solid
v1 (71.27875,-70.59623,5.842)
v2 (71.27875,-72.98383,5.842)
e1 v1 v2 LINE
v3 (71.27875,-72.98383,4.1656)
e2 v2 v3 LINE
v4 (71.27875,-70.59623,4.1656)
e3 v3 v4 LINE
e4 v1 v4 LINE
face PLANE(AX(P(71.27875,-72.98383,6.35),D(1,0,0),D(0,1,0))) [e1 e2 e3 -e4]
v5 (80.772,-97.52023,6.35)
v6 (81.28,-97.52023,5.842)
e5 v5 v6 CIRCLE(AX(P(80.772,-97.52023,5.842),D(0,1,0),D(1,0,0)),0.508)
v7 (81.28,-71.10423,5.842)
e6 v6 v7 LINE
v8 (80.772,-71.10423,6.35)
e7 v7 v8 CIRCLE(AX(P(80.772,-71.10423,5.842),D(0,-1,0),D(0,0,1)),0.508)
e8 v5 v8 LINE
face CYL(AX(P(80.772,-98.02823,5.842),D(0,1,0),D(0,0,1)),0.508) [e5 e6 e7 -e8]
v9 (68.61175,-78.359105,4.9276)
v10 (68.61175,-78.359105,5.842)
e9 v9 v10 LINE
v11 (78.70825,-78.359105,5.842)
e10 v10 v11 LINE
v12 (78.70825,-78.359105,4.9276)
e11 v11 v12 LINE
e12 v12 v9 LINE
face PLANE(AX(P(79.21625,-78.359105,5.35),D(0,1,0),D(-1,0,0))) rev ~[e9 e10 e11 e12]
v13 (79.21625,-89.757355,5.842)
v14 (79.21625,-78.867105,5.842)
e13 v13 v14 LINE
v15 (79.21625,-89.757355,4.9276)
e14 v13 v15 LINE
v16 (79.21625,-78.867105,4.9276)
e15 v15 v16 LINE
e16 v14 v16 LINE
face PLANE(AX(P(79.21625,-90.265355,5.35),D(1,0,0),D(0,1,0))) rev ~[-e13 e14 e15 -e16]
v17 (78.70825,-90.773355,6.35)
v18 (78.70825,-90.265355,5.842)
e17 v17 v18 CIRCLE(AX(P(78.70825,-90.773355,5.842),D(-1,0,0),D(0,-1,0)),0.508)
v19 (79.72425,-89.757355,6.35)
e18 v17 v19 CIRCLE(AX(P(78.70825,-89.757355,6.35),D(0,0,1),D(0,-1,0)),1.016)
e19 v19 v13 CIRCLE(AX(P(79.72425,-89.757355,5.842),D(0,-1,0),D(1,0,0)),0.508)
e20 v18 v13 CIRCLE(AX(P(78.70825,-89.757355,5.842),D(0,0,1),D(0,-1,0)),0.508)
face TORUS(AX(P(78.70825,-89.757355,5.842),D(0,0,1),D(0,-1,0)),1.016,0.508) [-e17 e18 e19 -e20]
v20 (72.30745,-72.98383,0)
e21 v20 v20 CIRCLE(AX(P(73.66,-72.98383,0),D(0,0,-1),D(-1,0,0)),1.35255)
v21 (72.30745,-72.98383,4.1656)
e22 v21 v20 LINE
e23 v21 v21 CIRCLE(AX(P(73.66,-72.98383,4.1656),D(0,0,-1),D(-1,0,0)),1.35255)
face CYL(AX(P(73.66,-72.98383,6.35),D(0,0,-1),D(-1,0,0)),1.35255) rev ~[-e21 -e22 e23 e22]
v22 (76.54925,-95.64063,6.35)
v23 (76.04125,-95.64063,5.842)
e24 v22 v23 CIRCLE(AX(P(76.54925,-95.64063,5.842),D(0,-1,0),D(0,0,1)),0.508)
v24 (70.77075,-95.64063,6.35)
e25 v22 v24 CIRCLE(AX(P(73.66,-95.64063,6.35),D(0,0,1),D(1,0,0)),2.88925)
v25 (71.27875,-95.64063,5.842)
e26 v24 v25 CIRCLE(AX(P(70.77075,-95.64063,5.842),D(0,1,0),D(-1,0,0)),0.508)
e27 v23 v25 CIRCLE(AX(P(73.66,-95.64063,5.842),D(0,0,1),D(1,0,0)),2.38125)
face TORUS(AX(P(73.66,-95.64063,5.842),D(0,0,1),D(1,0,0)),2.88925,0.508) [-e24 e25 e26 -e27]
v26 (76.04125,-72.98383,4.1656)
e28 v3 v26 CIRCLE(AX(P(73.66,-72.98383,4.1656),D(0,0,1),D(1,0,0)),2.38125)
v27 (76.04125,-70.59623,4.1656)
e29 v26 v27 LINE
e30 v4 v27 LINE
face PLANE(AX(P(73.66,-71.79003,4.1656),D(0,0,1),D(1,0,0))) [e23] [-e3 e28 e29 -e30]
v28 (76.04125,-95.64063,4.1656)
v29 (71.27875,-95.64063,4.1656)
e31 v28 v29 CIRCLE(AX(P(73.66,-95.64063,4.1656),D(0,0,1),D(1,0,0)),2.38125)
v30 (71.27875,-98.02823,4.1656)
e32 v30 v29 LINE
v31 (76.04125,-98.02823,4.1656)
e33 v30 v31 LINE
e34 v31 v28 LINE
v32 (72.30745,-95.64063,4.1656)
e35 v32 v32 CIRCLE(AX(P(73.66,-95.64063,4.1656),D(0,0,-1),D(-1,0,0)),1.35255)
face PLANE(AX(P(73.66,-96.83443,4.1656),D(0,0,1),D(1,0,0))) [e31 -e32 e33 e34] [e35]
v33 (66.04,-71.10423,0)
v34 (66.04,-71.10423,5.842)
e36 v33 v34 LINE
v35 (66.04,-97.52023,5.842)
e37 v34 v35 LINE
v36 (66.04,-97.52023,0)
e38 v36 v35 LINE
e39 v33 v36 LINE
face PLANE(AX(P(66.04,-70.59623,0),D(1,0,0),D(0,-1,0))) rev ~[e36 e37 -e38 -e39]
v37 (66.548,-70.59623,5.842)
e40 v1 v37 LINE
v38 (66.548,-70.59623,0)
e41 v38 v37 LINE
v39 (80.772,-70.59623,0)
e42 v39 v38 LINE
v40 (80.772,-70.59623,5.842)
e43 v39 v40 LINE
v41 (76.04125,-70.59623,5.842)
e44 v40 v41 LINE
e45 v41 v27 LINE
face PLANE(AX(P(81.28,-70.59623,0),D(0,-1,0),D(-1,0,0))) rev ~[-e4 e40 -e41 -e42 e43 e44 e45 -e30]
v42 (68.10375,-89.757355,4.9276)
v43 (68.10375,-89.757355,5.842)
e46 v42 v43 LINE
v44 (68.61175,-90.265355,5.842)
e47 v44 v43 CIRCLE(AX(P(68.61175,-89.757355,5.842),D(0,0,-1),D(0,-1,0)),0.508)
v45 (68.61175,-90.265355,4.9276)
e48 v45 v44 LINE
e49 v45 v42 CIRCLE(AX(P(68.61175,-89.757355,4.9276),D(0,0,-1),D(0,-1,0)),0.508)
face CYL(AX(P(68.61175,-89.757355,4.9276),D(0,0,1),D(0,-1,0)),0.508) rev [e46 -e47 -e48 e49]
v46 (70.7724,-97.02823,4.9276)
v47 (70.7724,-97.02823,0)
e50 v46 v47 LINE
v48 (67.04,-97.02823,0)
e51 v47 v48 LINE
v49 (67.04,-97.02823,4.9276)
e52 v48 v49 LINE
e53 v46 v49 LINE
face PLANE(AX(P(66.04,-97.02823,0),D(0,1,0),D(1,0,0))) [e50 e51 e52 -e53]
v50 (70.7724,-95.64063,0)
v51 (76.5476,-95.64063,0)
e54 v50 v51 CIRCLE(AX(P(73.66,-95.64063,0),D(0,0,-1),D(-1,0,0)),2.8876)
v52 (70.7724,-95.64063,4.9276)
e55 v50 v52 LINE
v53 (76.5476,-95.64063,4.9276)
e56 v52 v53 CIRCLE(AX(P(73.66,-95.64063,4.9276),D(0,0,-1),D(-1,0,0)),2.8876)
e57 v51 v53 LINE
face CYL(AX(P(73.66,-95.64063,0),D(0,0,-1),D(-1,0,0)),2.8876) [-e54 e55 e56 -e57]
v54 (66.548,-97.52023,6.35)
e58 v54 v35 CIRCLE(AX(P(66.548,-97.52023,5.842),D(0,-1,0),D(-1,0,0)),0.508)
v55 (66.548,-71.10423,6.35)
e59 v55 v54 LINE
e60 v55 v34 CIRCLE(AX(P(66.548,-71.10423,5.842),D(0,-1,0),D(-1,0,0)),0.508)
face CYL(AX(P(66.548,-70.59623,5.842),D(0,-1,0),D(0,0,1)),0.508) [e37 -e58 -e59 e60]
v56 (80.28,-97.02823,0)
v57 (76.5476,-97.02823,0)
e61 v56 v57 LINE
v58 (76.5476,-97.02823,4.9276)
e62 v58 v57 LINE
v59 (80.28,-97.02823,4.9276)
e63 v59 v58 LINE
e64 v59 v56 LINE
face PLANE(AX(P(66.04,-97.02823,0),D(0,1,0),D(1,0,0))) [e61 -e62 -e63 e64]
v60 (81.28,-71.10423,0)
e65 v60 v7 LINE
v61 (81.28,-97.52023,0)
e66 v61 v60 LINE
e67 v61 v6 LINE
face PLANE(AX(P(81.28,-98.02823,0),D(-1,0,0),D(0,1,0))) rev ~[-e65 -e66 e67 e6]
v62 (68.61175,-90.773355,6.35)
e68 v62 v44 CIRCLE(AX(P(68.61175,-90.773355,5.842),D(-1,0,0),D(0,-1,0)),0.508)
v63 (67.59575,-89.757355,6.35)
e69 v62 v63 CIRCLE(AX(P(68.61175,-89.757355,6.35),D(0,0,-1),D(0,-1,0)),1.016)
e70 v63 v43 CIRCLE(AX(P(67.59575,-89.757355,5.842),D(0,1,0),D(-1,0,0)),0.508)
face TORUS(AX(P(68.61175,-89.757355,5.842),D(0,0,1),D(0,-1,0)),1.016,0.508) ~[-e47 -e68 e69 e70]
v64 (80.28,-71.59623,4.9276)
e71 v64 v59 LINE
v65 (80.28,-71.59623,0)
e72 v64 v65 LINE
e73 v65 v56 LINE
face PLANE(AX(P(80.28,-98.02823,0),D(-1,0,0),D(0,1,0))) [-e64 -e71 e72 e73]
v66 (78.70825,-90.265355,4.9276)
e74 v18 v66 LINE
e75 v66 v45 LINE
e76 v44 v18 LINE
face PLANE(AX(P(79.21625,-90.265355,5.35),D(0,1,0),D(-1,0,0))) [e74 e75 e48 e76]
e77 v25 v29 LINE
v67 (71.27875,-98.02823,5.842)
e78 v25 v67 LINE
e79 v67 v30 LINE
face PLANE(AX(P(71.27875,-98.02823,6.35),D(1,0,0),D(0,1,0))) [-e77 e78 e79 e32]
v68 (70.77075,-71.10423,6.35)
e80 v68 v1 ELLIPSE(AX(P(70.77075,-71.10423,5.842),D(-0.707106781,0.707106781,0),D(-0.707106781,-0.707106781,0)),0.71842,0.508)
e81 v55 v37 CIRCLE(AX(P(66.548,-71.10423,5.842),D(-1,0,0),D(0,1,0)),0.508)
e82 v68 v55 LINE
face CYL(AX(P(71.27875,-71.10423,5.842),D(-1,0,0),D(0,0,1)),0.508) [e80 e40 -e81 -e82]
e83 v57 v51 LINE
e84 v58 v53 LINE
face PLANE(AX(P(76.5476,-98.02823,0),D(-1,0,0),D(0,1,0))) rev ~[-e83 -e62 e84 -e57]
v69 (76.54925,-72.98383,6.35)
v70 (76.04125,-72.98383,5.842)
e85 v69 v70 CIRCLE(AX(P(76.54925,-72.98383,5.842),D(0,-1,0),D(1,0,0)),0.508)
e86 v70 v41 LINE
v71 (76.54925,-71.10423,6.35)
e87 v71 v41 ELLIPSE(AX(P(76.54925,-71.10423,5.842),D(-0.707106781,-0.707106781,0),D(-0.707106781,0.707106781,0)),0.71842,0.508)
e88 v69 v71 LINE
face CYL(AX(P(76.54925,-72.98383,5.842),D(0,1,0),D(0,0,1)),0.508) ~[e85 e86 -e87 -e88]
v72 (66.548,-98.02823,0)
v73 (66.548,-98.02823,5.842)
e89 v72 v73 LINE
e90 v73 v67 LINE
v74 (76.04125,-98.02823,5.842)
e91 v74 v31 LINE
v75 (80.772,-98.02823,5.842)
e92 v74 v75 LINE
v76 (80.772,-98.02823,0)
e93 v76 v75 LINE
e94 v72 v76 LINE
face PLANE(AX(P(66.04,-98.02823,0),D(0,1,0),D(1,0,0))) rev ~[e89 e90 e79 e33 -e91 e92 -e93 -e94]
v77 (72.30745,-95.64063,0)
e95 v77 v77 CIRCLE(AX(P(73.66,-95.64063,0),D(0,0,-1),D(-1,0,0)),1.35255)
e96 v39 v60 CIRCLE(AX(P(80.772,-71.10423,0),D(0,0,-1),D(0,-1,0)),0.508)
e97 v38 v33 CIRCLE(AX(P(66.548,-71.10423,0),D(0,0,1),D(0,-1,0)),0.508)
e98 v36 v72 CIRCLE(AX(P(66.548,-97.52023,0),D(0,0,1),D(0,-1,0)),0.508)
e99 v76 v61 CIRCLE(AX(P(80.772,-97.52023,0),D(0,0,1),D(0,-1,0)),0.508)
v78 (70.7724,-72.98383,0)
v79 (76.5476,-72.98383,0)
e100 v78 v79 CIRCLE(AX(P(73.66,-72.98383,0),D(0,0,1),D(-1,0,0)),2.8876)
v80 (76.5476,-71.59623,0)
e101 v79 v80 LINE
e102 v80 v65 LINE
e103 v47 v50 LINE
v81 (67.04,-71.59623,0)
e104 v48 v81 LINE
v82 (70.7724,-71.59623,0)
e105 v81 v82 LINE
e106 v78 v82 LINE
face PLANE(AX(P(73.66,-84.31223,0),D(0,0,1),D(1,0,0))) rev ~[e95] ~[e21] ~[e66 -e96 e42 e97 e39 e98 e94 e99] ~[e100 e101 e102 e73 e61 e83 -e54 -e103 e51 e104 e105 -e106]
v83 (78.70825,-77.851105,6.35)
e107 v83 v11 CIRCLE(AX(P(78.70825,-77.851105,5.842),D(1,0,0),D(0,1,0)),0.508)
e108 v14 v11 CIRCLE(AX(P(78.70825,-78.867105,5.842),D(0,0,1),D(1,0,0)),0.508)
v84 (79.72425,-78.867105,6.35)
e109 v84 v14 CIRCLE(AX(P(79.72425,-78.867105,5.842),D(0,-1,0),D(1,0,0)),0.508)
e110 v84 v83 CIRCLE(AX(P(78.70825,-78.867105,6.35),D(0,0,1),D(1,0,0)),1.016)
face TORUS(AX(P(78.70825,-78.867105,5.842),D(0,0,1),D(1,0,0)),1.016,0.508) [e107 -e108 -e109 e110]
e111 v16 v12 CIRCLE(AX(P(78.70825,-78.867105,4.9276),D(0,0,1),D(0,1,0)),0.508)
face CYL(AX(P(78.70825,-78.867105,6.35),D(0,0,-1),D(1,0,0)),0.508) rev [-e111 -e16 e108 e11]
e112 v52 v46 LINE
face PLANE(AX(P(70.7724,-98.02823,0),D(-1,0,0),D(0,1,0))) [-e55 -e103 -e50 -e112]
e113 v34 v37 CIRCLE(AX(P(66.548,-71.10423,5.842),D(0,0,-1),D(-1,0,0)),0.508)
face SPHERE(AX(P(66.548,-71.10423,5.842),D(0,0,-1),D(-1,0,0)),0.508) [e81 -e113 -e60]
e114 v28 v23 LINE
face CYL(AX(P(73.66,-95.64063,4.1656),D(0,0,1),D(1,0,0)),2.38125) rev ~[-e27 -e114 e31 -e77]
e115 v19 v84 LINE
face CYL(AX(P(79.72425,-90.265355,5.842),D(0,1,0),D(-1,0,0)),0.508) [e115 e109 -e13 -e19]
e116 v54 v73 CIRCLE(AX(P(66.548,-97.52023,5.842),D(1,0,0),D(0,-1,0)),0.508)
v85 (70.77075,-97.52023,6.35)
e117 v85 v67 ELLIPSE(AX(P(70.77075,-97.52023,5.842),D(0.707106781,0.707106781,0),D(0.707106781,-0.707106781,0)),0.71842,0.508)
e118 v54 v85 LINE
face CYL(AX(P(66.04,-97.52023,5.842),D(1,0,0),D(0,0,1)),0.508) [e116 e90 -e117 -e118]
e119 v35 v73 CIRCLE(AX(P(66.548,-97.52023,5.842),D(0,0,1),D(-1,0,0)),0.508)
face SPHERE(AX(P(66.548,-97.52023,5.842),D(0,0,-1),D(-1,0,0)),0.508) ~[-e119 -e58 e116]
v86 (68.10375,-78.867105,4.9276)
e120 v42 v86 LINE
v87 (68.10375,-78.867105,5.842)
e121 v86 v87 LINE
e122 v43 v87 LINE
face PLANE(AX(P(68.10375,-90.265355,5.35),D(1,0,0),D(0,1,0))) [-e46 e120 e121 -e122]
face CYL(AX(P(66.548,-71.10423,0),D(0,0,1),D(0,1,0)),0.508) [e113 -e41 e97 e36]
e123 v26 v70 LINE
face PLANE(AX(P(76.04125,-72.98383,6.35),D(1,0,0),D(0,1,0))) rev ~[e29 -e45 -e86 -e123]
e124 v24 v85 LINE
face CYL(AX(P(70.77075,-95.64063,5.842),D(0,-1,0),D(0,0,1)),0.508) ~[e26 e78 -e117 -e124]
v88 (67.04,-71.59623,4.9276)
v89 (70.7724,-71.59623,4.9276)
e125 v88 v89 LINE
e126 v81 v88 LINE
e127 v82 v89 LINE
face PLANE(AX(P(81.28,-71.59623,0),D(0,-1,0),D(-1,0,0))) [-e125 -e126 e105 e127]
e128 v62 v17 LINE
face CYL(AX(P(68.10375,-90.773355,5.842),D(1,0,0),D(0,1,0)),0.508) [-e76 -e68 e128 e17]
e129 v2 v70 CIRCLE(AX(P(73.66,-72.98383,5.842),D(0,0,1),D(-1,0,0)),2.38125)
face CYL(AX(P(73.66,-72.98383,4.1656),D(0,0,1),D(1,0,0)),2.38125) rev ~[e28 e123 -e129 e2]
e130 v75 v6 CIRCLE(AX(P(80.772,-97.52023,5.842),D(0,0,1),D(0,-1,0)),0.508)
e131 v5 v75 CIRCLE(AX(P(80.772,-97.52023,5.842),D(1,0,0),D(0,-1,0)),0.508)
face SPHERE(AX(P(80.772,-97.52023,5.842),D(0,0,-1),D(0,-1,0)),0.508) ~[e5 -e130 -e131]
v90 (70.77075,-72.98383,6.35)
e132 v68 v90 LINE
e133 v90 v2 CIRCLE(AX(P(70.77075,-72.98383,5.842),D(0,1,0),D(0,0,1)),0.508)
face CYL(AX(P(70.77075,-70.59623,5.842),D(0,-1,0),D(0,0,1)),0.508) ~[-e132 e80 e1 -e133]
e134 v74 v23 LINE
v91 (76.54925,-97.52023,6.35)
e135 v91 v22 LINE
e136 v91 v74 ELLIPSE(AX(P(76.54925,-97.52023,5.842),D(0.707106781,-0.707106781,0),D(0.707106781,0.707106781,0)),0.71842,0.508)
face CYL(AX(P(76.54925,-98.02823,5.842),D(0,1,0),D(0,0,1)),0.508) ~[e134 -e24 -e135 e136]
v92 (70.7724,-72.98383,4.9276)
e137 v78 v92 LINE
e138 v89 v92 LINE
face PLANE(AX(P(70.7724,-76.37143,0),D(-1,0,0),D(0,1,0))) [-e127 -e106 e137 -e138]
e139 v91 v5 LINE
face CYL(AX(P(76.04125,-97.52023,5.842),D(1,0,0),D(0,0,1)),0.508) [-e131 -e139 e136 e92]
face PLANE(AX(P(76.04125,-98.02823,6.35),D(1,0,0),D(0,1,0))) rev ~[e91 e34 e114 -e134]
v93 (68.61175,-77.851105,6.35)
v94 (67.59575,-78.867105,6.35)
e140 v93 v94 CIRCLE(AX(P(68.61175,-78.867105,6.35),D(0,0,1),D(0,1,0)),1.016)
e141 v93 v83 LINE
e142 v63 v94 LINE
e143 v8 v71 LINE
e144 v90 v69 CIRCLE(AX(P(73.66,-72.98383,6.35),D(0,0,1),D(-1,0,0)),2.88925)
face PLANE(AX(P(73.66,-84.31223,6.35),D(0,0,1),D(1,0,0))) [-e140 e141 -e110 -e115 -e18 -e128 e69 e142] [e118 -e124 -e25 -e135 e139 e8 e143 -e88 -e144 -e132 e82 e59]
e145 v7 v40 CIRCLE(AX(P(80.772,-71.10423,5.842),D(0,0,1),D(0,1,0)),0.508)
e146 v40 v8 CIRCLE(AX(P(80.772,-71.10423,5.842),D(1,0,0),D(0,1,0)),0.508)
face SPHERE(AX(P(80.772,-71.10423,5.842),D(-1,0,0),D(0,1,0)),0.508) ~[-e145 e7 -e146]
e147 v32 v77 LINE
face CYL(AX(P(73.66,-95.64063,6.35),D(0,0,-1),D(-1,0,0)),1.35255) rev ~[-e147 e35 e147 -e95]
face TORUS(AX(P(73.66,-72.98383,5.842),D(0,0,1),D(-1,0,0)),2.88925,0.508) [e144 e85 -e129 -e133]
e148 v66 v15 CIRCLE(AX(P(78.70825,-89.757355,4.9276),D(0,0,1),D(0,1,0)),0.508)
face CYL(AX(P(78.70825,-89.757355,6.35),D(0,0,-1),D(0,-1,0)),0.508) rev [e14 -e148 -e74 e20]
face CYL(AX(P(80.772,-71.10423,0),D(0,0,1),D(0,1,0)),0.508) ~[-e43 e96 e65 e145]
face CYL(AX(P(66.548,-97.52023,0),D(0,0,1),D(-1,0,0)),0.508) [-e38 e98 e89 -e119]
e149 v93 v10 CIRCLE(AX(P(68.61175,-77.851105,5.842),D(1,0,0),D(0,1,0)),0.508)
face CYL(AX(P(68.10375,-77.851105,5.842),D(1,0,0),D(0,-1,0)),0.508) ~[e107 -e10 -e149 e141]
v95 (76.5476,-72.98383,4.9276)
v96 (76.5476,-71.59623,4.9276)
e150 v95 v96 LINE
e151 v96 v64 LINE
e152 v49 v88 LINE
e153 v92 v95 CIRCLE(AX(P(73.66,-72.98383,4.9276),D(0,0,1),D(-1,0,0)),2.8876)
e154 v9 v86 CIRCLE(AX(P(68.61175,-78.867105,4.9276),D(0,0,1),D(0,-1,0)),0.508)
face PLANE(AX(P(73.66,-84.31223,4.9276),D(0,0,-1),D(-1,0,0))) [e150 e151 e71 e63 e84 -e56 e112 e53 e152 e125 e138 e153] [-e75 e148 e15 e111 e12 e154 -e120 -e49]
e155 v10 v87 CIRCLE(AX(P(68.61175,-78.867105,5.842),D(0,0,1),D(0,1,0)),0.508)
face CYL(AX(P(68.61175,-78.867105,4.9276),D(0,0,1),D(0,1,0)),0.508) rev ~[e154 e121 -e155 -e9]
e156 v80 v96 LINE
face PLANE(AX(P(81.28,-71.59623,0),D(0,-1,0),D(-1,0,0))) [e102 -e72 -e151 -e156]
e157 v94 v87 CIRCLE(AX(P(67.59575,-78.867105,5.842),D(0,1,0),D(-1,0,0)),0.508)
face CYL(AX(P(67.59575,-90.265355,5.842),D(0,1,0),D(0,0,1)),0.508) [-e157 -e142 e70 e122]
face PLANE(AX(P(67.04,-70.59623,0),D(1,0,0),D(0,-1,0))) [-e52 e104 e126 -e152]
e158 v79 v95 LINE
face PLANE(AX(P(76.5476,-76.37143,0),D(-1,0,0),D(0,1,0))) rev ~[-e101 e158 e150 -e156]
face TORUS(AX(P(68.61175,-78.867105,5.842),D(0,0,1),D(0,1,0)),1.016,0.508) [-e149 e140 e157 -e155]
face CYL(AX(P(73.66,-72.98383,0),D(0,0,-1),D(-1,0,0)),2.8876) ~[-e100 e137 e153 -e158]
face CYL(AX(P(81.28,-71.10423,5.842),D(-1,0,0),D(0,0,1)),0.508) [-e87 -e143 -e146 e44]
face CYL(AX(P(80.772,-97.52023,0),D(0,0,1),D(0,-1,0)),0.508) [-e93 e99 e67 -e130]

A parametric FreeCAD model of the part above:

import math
import FreeCAD as App
import Part
import Sketcher
Q = App.Units.Quantity


def edges_at(feature, points):
    """Names of the edges that pass closest to the given points."""
    edges = feature.Shape.Edges
    near = lambda p: min(range(len(edges)), key=lambda i: edges[i].distToShape(Part.Vertex(*p))[0])
    return sorted({f"Edge{near(p) + 1}" for p in points})


def faces_at(feature, points):
    """Names of the faces that lie closest to the given points."""
    faces = feature.Shape.Faces
    near = lambda p: min(range(len(faces)), key=lambda i: faces[i].distToShape(Part.Vertex(*p))[0])
    return sorted({f"Face{near(p) + 1}" for p in points})

doc = App.newDocument("Part")
body = doc.addObject("PartDesign::Body", "Body")

# Sketch on XY plane
sketch1 = body.newObject("Sketcher::SketchObject", "Sketch")
sketch1.AttachmentSupport = (doc.getObject("XY_Plane"), [""])
sketch1.MapMode = "FlatFace"
sketch1.addGeometry(Part.LineSegment(App.Vector(81.28, -70.59623, 0), App.Vector(66.04, -70.59623, 0)), False)
sketch1.addGeometry(Part.LineSegment(App.Vector(66.04, -70.59623, 0), App.Vector(66.04, -98.02823, 0)), False)
sketch1.addGeometry(Part.LineSegment(App.Vector(66.04, -98.02823, 0), App.Vector(81.28, -98.02823, 0)), False)
sketch1.addGeometry(Part.LineSegment(App.Vector(81.28, -98.02823, 0), App.Vector(81.28, -70.59623, 0)), False)
sketch1.addConstraint(Sketcher.Constraint("Coincident", 0, 2, 1, 1))
sketch1.addConstraint(Sketcher.Constraint("Coincident", 1, 2, 2, 1))
sketch1.addConstraint(Sketcher.Constraint("Coincident", 2, 2, 3, 1))
sketch1.addConstraint(Sketcher.Constraint("Coincident", 3, 2, 0, 1))
sketch1.addConstraint(Sketcher.Constraint("Horizontal", 0))
sketch1.addConstraint(Sketcher.Constraint("Vertical", 1))
sketch1.addConstraint(Sketcher.Constraint("Horizontal", 2))
sketch1.addConstraint(Sketcher.Constraint("Vertical", 3))
sketch1.addConstraint(Sketcher.Constraint("DistanceX", 0, 2, 0, 1, Q("0.6 in")))
sketch1.addConstraint(Sketcher.Constraint("DistanceY", 1, 2, 1, 1, Q("1.08 in")))
sketch1.addConstraint(Sketcher.Constraint("DistanceX", -1, 1, 0, 2, Q("2.6 in")))
sketch1.addConstraint(Sketcher.Constraint("DistanceY", 0, 2, -1, 1, Q("70.59623 mm")))
pad1 = body.newObject("PartDesign::Pad", "Pad")
pad1.Profile = sketch1
pad1.Length = Q("0.25 in")

# Sketch on XY plane
sketch2 = body.newObject("Sketcher::SketchObject", "Sketch001")
sketch2.AttachmentSupport = (doc.getObject("XY_Plane"), [""])
sketch2.MapMode = "FlatFace"
sketch2.AttachmentOffset = App.Placement(App.Vector(0, 0, 0.25 * 25.4), App.Rotation())
sketch2.addGeometry(Part.LineSegment(App.Vector(68.10375, -78.359105, 0), App.Vector(68.10375, -90.265355, 0)), False)
sketch2.addGeometry(Part.LineSegment(App.Vector(68.10375, -90.265355, 0), App.Vector(79.21625, -90.265355, 0)), False)
sketch2.addGeometry(Part.LineSegment(App.Vector(79.21625, -90.265355, 0), App.Vector(79.21625, -78.359105, 0)), False)
sketch2.addGeometry(Part.LineSegment(App.Vector(79.21625, -78.359105, 0), App.Vector(68.10375, -78.359105, 0)), False)
sketch2.addConstraint(Sketcher.Constraint("Coincident", 0, 2, 1, 1))
sketch2.addConstraint(Sketcher.Constraint("Coincident", 1, 2, 2, 1))
sketch2.addConstraint(Sketcher.Constraint("Coincident", 2, 2, 3, 1))
sketch2.addConstraint(Sketcher.Constraint("Coincident", 3, 2, 0, 1))
sketch2.addConstraint(Sketcher.Constraint("Vertical", 0))
sketch2.addConstraint(Sketcher.Constraint("Horizontal", 1))
sketch2.addConstraint(Sketcher.Constraint("Vertical", 2))
sketch2.addConstraint(Sketcher.Constraint("Horizontal", 3))
sketch2.addConstraint(Sketcher.Constraint("DistanceX", 1, 1, 1, 2, Q("0.4375 in")))
sketch2.addConstraint(Sketcher.Constraint("DistanceY", 0, 2, 0, 1, Q("0.46875 in")))
sketch2.addConstraint(Sketcher.Constraint("DistanceX", -1, 1, 0, 2, Q("68.10375 mm")))
sketch2.addConstraint(Sketcher.Constraint("DistanceY", 0, 2, -1, 1, Q("90.265355 mm")))
pocket1 = body.newObject("PartDesign::Pocket", "Pocket")
pocket1.Profile = sketch2
pocket1.Type = "ThroughAll"
doc.recompute()

thickness = body.newObject("PartDesign::Thickness", "Thickness")
thickness.Base = (pocket1, faces_at(pocket1, [
    (73.66, -90.265, 3.175),
    (68.104, -84.312, 3.175),
    (73.66, -78.359, 3.175),
    (79.216, -84.312, 3.175),
    (67.564, -84.312, 0),
]))
thickness.Value = 1
thickness.Reversed = True
thickness.Join = "Intersection"

# Sketch on XY plane
sketch3 = body.newObject("Sketcher::SketchObject", "Sketch002")
sketch3.AttachmentSupport = (doc.getObject("XY_Plane"), [""])
sketch3.MapMode = "FlatFace"
sketch3.addGeometry(Part.LineSegment(App.Vector(76.5476, -70.59623, 0), App.Vector(76.5476, -76.37143, 0)), False)
sketch3.addGeometry(Part.LineSegment(App.Vector(76.5476, -76.37143, 0), App.Vector(70.7724, -76.37143, 0)), False)
sketch3.addGeometry(Part.LineSegment(App.Vector(70.7724, -76.37143, 0), App.Vector(70.7724, -70.59623, 0)), False)
sketch3.addGeometry(Part.LineSegment(App.Vector(70.7724, -70.59623, 0), App.Vector(76.5476, -70.59623, 0)), False)
sketch3.addConstraint(Sketcher.Constraint("Coincident", 0, 2, 1, 1))
sketch3.addConstraint(Sketcher.Constraint("Coincident", 1, 2, 2, 1))
sketch3.addConstraint(Sketcher.Constraint("Coincident", 2, 2, 3, 1))
sketch3.addConstraint(Sketcher.Constraint("Coincident", 3, 2, 0, 1))
sketch3.addConstraint(Sketcher.Constraint("Vertical", 0))
sketch3.addConstraint(Sketcher.Constraint("Horizontal", 1))
sketch3.addConstraint(Sketcher.Constraint("Vertical", 2))
sketch3.addConstraint(Sketcher.Constraint("Horizontal", 3))
sketch3.addConstraint(Sketcher.Constraint("Equal", 3, 0))
sketch3.addConstraint(Sketcher.Constraint("DistanceX", 1, 2, 1, 1, Q("5.7752 mm")))
sketch3.addConstraint(Sketcher.Constraint("DistanceX", -1, 1, 0, 2, Q("76.5476 mm")))
sketch3.addConstraint(Sketcher.Constraint("DistanceY", 0, 2, -1, 1, Q("76.37143 mm")))
pad2 = body.newObject("PartDesign::Pad", "Pad001")
pad2.Profile = sketch3
pad2.Type = "UpToFirst"

# Sketch on XY plane
sketch4 = body.newObject("Sketcher::SketchObject", "Sketch003")
sketch4.AttachmentSupport = (doc.getObject("XY_Plane"), [""])
sketch4.MapMode = "FlatFace"
sketch4.addGeometry(Part.LineSegment(App.Vector(76.5476, -92.25303, 0), App.Vector(76.5476, -98.02823, 0)), False)
sketch4.addGeometry(Part.LineSegment(App.Vector(76.5476, -98.02823, 0), App.Vector(70.7724, -98.02823, 0)), False)
sketch4.addGeometry(Part.LineSegment(App.Vector(70.7724, -98.02823, 0), App.Vector(70.7724, -92.25303, 0)), False)
sketch4.addGeometry(Part.LineSegment(App.Vector(70.7724, -92.25303, 0), App.Vector(76.5476, -92.25303, 0)), False)
sketch4.addConstraint(Sketcher.Constraint("Coincident", 0, 2, 1, 1))
sketch4.addConstraint(Sketcher.Constraint("Coincident", 1, 2, 2, 1))
sketch4.addConstraint(Sketcher.Constraint("Coincident", 2, 2, 3, 1))
sketch4.addConstraint(Sketcher.Constraint("Coincident", 3, 2, 0, 1))
sketch4.addConstraint(Sketcher.Constraint("Vertical", 0))
sketch4.addConstraint(Sketcher.Constraint("Horizontal", 1))
sketch4.addConstraint(Sketcher.Constraint("Vertical", 2))
sketch4.addConstraint(Sketcher.Constraint("Horizontal", 3))
sketch4.addConstraint(Sketcher.Constraint("Equal", 3, 0))
sketch4.addConstraint(Sketcher.Constraint("DistanceX", 1, 2, 1, 1, Q("5.7752 mm")))
sketch4.addConstraint(Sketcher.Constraint("DistanceX", -1, 1, 0, 2, Q("76.5476 mm")))
sketch4.addConstraint(Sketcher.Constraint("DistanceY", 0, 2, -1, 1, Q("98.02823 mm")))
pad3 = body.newObject("PartDesign::Pad", "Pad002")
pad3.Profile = sketch4
pad3.Type = "UpToFirst"

# Sketch on XY plane
sketch5 = body.newObject("Sketcher::SketchObject", "Sketch004")
sketch5.AttachmentSupport = (doc.getObject("XY_Plane"), [""])
sketch5.MapMode = "FlatFace"
sketch5.AttachmentOffset = App.Placement(App.Vector(0, 0, 0.25 * 25.4), App.Rotation())
sketch5.addGeometry(Part.Circle(App.Vector(73.66, -95.64063, 0), App.Vector(0, 0, 1), 1.35255), False)
sketch5.addGeometry(Part.Circle(App.Vector(73.66, -72.98383, 0), App.Vector(0, 0, 1), 1.35255), False)
sketch5.addConstraint(Sketcher.Constraint("Equal", 0, 1))
sketch5.addConstraint(Sketcher.Constraint("Vertical", 0, 3, 1, 3))
sketch5.addConstraint(Sketcher.Constraint("Diameter", 0, Q("0.1065 in")))
sketch5.addConstraint(Sketcher.Constraint("DistanceX", -1, 1, 0, 3, Q("2.9 in")))
sketch5.addConstraint(Sketcher.Constraint("DistanceY", 0, 3, 1, 3, Q("0.892 in")))
sketch5.addConstraint(Sketcher.Constraint("DistanceY", 0, 3, -1, 1, Q("95.64063 mm")))
doc.recompute()
hole = body.newObject("PartDesign::Hole", "Hole")
hole.Profile = sketch5
hole.ThreadType = "None"
hole.Diameter = Q("0.1065 in")
hole.DepthType = "ThroughAll"
hole.HoleCutType = "Counterbore"
hole.HoleCutDiameter = Q("0.1875 in")
hole.HoleCutDepth = Q("0.086 in")

# Sketch on XY plane
sketch6 = body.newObject("Sketcher::SketchObject", "Sketch005")
sketch6.AttachmentSupport = (doc.getObject("XY_Plane"), [""])
sketch6.MapMode = "FlatFace"
sketch6.addGeometry(Part.LineSegment(App.Vector(76.8016, -95.64063, 0), App.Vector(76.5476, -95.64063, 0)), False)
sketch6.addGeometry(Part.ArcOfCircle(Part.Circle(App.Vector(73.66, -95.64063, 0), App.Vector(0, 0, 1), 2.8876), math.radians(0), math.radians(180)), False)
sketch6.addGeometry(Part.LineSegment(App.Vector(70.7724, -95.64063, 0), App.Vector(70.5184, -95.64063, 0)), False)
sketch6.addGeometry(Part.LineSegment(App.Vector(70.5184, -95.64063, 0), App.Vector(70.5184, -92.25303, 0)), False)
sketch6.addGeometry(Part.LineSegment(App.Vector(70.5184, -92.25303, 0), App.Vector(76.8016, -92.25303, 0)), False)
sketch6.addGeometry(Part.LineSegment(App.Vector(76.8016, -92.25303, 0), App.Vector(76.8016, -95.64063, 0)), False)
sketch6.addGeometry(Part.LineSegment(App.Vector(76.8016, -72.98383, 0), App.Vector(76.8016, -76.37143, 0)), False)
sketch6.addGeometry(Part.LineSegment(App.Vector(76.8016, -76.37143, 0), App.Vector(70.5184, -76.37143, 0)), False)
sketch6.addGeometry(Part.LineSegment(App.Vector(70.5184, -76.37143, 0), App.Vector(70.5184, -72.98383, 0)), False)
sketch6.addGeometry(Part.LineSegment(App.Vector(70.5184, -72.98383, 0), App.Vector(70.7724, -72.98383, 0)), False)
sketch6.addGeometry(Part.ArcOfCircle(Part.Circle(App.Vector(73.66, -72.98383, 0), App.Vector(0, 0, 1), 2.8876), math.radians(180), math.radians(360)), False)
sketch6.addGeometry(Part.LineSegment(App.Vector(76.5476, -72.98383, 0), App.Vector(76.8016, -72.98383, 0)), False)
sketch6.addConstraint(Sketcher.Constraint("Coincident", 0, 2, 1, 1))
sketch6.addConstraint(Sketcher.Constraint("Coincident", 1, 2, 2, 1))
sketch6.addConstraint(Sketcher.Constraint("Coincident", 2, 2, 3, 1))
sketch6.addConstraint(Sketcher.Constraint("Coincident", 3, 2, 4, 1))
sketch6.addConstraint(Sketcher.Constraint("Coincident", 4, 2, 5, 1))
sketch6.addConstraint(Sketcher.Constraint("Coincident", 5, 2, 0, 1))
sketch6.addConstraint(Sketcher.Constraint("Coincident", 6, 2, 7, 1))
sketch6.addConstraint(Sketcher.Constraint("Coincident", 7, 2, 8, 1))
sketch6.addConstraint(Sketcher.Constraint("Coincident", 8, 2, 9, 1))
sketch6.addConstraint(Sketcher.Constraint("Coincident", 9, 2, 10, 1))
sketch6.addConstraint(Sketcher.Constraint("Coincident", 10, 2, 11, 1))
sketch6.addConstraint(Sketcher.Constraint("Coincident", 11, 2, 6, 1))
sketch6.addConstraint(Sketcher.Constraint("Horizontal", 0))
sketch6.addConstraint(Sketcher.Constraint("Horizontal", 2))
sketch6.addConstraint(Sketcher.Constraint("Vertical", 3))
sketch6.addConstraint(Sketcher.Constraint("Horizontal", 4))
sketch6.addConstraint(Sketcher.Constraint("Vertical", 5))
sketch6.addConstraint(Sketcher.Constraint("Vertical", 6))
sketch6.addConstraint(Sketcher.Constraint("Horizontal", 7))
sketch6.addConstraint(Sketcher.Constraint("Vertical", 8))
sketch6.addConstraint(Sketcher.Constraint("Horizontal", 9))
sketch6.addConstraint(Sketcher.Constraint("Horizontal", 11))
sketch6.addConstraint(Sketcher.Constraint("Equal", 1, 10))
sketch6.addConstraint(Sketcher.Constraint("Horizontal", 1, 3, 0, 2))
sketch6.addConstraint(Sketcher.Constraint("Horizontal", 0, 2, 1, 2))
sketch6.addConstraint(Sketcher.Constraint("Horizontal", 10, 3, 8, 2))
sketch6.addConstraint(Sketcher.Constraint("Horizontal", 9, 2, 10, 2))
sketch6.addConstraint(Sketcher.Constraint("Vertical", 1, 3, 10, 3))
sketch6.addConstraint(Sketcher.Constraint("Vertical", 5, 2, 6, 2))
sketch6.addConstraint(Sketcher.Constraint("Vertical", 3, 2, 7, 2))
sketch6.addConstraint(Sketcher.Constraint("Equal", 0, 2))
sketch6.addConstraint(Sketcher.Constraint("Equal", 5, 6))
sketch6.addConstraint(Sketcher.Constraint("DistanceX", 0, 2, 0, 1, Q("0.01 in")))
sketch6.addConstraint(Sketcher.Constraint("DistanceX", -1, 1, 1, 3, Q("2.9 in")))
sketch6.addConstraint(Sketcher.Constraint("Radius", 1, Q("2.8876 mm")))
sketch6.addConstraint(Sketcher.Constraint("DistanceY", 1, 3, 10, 3, Q("0.892 in")))
sketch6.addConstraint(Sketcher.Constraint("DistanceY", 3, 1, 3, 2, Q("3.3876 mm")))
sketch6.addConstraint(Sketcher.Constraint("DistanceY", 1, 3, -1, 1, Q("95.64063 mm")))
pocket2 = body.newObject("PartDesign::Pocket", "Pocket001")
pocket2.Profile = sketch6
pocket2.Length = Q("0.194 in")
pocket2.Reversed = True

# Sketch on XY plane
sketch7 = body.newObject("Sketcher::SketchObject", "Sketch006")
sketch7.AttachmentSupport = (doc.getObject("XY_Plane"), [""])
sketch7.MapMode = "FlatFace"
sketch7.AttachmentOffset = App.Placement(App.Vector(0, 0, 5.35), App.Rotation())
sketch7.addGeometry(Part.LineSegment(App.Vector(70.7724, -76.37143, 0), App.Vector(76.5476, -76.37143, 0)), False)
sketch7.addGeometry(Part.LineSegment(App.Vector(76.5476, -76.37143, 0), App.Vector(76.5476, -71.59623, 0)), False)
sketch7.addGeometry(Part.LineSegment(App.Vector(76.5476, -71.59623, 0), App.Vector(80.28, -71.59623, 0)), False)
sketch7.addGeometry(Part.LineSegment(App.Vector(80.28, -71.59623, 0), App.Vector(80.28, -97.02823, 0)), False)
sketch7.addGeometry(Part.LineSegment(App.Vector(80.28, -97.02823, 0), App.Vector(76.5476, -97.02823, 0)), False)
sketch7.addGeometry(Part.LineSegment(App.Vector(76.5476, -97.02823, 0), App.Vector(76.5476, -92.25303, 0)), False)
sketch7.addGeometry(Part.LineSegment(App.Vector(76.5476, -92.25303, 0), App.Vector(70.7724, -92.25303, 0)), False)
sketch7.addGeometry(Part.LineSegment(App.Vector(70.7724, -92.25303, 0), App.Vector(70.7724, -97.02823, 0)), False)
sketch7.addGeometry(Part.LineSegment(App.Vector(70.7724, -97.02823, 0), App.Vector(67.04, -97.02823, 0)), False)
sketch7.addGeometry(Part.LineSegment(App.Vector(67.04, -97.02823, 0), App.Vector(67.04, -71.59623, 0)), False)
sketch7.addGeometry(Part.LineSegment(App.Vector(67.04, -71.59623, 0), App.Vector(70.7724, -71.59623, 0)), False)
sketch7.addGeometry(Part.LineSegment(App.Vector(70.7724, -71.59623, 0), App.Vector(70.7724, -76.37143, 0)), False)
sketch7.addGeometry(Part.LineSegment(App.Vector(68.10375, -90.265355, 0), App.Vector(79.21625, -90.265355, 0)), False)
sketch7.addGeometry(Part.LineSegment(App.Vector(79.21625, -90.265355, 0), App.Vector(79.21625, -78.359105, 0)), False)
sketch7.addGeometry(Part.LineSegment(App.Vector(79.21625, -78.359105, 0), App.Vector(68.10375, -78.359105, 0)), False)
sketch7.addGeometry(Part.LineSegment(App.Vector(68.10375, -78.359105, 0), App.Vector(68.10375, -90.265355, 0)), False)
sketch7.addConstraint(Sketcher.Constraint("Coincident", 0, 2, 1, 1))
sketch7.addConstraint(Sketcher.Constraint("Coincident", 1, 2, 2, 1))
sketch7.addConstraint(Sketcher.Constraint("Coincident", 2, 2, 3, 1))
sketch7.addConstraint(Sketcher.Constraint("Coincident", 3, 2, 4, 1))
sketch7.addConstraint(Sketcher.Constraint("Coincident", 4, 2, 5, 1))
sketch7.addConstraint(Sketcher.Constraint("Coincident", 5, 2, 6, 1))
sketch7.addConstraint(Sketcher.Constraint("Coincident", 6, 2, 7, 1))
sketch7.addConstraint(Sketcher.Constraint("Coincident", 7, 2, 8, 1))
sketch7.addConstraint(Sketcher.Constraint("Coincident", 8, 2, 9, 1))
sketch7.addConstraint(Sketcher.Constraint("Coincident", 9, 2, 10, 1))
sketch7.addConstraint(Sketcher.Constraint("Coincident", 10, 2, 11, 1))
sketch7.addConstraint(Sketcher.Constraint("Coincident", 11, 2, 0, 1))
sketch7.addConstraint(Sketcher.Constraint("Coincident", 12, 2, 13, 1))
sketch7.addConstraint(Sketcher.Constraint("Coincident", 13, 2, 14, 1))
sketch7.addConstraint(Sketcher.Constraint("Coincident", 14, 2, 15, 1))
sketch7.addConstraint(Sketcher.Constraint("Coincident", 15, 2, 12, 1))
sketch7.addConstraint(Sketcher.Constraint("Horizontal", 0))
sketch7.addConstraint(Sketcher.Constraint("Vertical", 1))
sketch7.addConstraint(Sketcher.Constraint("Horizontal", 2))
sketch7.addConstraint(Sketcher.Constraint("Vertical", 3))
sketch7.addConstraint(Sketcher.Constraint("Horizontal", 4))
sketch7.addConstraint(Sketcher.Constraint("Vertical", 5))
sketch7.addConstraint(Sketcher.Constraint("Horizontal", 6))
sketch7.addConstraint(Sketcher.Constraint("Vertical", 7))
sketch7.addConstraint(Sketcher.Constraint("Horizontal", 8))
sketch7.addConstraint(Sketcher.Constraint("Vertical", 9))
sketch7.addConstraint(Sketcher.Constraint("Horizontal", 10))
sketch7.addConstraint(Sketcher.Constraint("Vertical", 11))
sketch7.addConstraint(Sketcher.Constraint("Horizontal", 12))
sketch7.addConstraint(Sketcher.Constraint("Vertical", 13))
sketch7.addConstraint(Sketcher.Constraint("Horizontal", 14))
sketch7.addConstraint(Sketcher.Constraint("Vertical", 15))
sketch7.addConstraint(Sketcher.Constraint("Horizontal", 4, 2, 7, 2))
sketch7.addConstraint(Sketcher.Constraint("Horizontal", 2, 2, 9, 2))
sketch7.addConstraint(Sketcher.Constraint("Vertical", 1, 2, 4, 2))
sketch7.addConstraint(Sketcher.Constraint("Vertical", 7, 2, 10, 2))
sketch7.addConstraint(Sketcher.Constraint("Equal", 4, 8))
sketch7.addConstraint(Sketcher.Constraint("Equal", 1, 5))
sketch7.addConstraint(Sketcher.Constraint("DistanceX", 12, 1, 12, 2, Q("0.4375 in")))
sketch7.addConstraint(Sketcher.Constraint("DistanceY", 1, 1, 1, 2, Q("0.188 in")))
sketch7.addConstraint(Sketcher.Constraint("DistanceY", 13, 1, 13, 2, Q("0.46875 in")))
sketch7.addConstraint(Sketcher.Constraint("DistanceX", 0, 1, 0, 2, Q("5.7752 mm")))
sketch7.addConstraint(Sketcher.Constraint("DistanceX", 2, 1, 2, 2, Q("3.7324 mm")))
sketch7.addConstraint(Sketcher.Constraint("DistanceY", 3, 2, 3, 1, Q("25.432 mm")))
sketch7.addConstraint(Sketcher.Constraint("DistanceX", -1, 1, 0, 2, Q("76.5476 mm")))
sketch7.addConstraint(Sketcher.Constraint("DistanceY", 0, 2, -1, 1, Q("76.37143 mm")))
sketch7.addConstraint(Sketcher.Constraint("DistanceX", -1, 1, 12, 2, Q("79.21625 mm")))
sketch7.addConstraint(Sketcher.Constraint("DistanceY", 12, 2, -1, 1, Q("90.265355 mm")))
pad4 = body.newObject("PartDesign::Pad", "Pad003")
pad4.Profile = sketch7
pad4.Length = 0.4224
pad4.Reversed = True

# Sketch on XY plane
sketch8 = body.newObject("Sketcher::SketchObject", "Sketch007")
sketch8.AttachmentSupport = (doc.getObject("XY_Plane"), [""])
sketch8.MapMode = "FlatFace"
sketch8.AttachmentOffset = App.Placement(App.Vector(0, 0, 0.25 * 25.4), App.Rotation())
sketch8.addGeometry(Part.LineSegment(App.Vector(71.27875, -95.64063, 0), App.Vector(71.27875, -98.02823, 0)), False)
sketch8.addGeometry(Part.LineSegment(App.Vector(71.27875, -98.02823, 0), App.Vector(76.04125, -98.02823, 0)), False)
sketch8.addGeometry(Part.LineSegment(App.Vector(76.04125, -98.02823, 0), App.Vector(76.04125, -95.64063, 0)), False)
sketch8.addGeometry(Part.LineSegment(App.Vector(76.04125, -95.64063, 0), App.Vector(71.27875, -95.64063, 0)), False)
sketch8.addGeometry(Part.LineSegment(App.Vector(71.27875, -70.59623, 0), App.Vector(71.27875, -72.98383, 0)), False)
sketch8.addGeometry(Part.LineSegment(App.Vector(71.27875, -72.98383, 0), App.Vector(76.04125, -72.98383, 0)), False)
sketch8.addGeometry(Part.LineSegment(App.Vector(76.04125, -72.98383, 0), App.Vector(76.04125, -70.59623, 0)), False)
sketch8.addGeometry(Part.LineSegment(App.Vector(76.04125, -70.59623, 0), App.Vector(71.27875, -70.59623, 0)), False)
sketch8.addConstraint(Sketcher.Constraint("Coincident", 0, 2, 1, 1))
sketch8.addConstraint(Sketcher.Constraint("Coincident", 1, 2, 2, 1))
sketch8.addConstraint(Sketcher.Constraint("Coincident", 2, 2, 3, 1))
sketch8.addConstraint(Sketcher.Constraint("Coincident", 3, 2, 0, 1))
sketch8.addConstraint(Sketcher.Constraint("Coincident", 4, 2, 5, 1))
sketch8.addConstraint(Sketcher.Constraint("Coincident", 5, 2, 6, 1))
sketch8.addConstraint(Sketcher.Constraint("Coincident", 6, 2, 7, 1))
sketch8.addConstraint(Sketcher.Constraint("Coincident", 7, 2, 4, 1))
sketch8.addConstraint(Sketcher.Constraint("Vertical", 0))
sketch8.addConstraint(Sketcher.Constraint("Horizontal", 1))
sketch8.addConstraint(Sketcher.Constraint("Vertical", 2))
sketch8.addConstraint(Sketcher.Constraint("Horizontal", 3))
sketch8.addConstraint(Sketcher.Constraint("Vertical", 4))
sketch8.addConstraint(Sketcher.Constraint("Horizontal", 5))
sketch8.addConstraint(Sketcher.Constraint("Vertical", 6))
sketch8.addConstraint(Sketcher.Constraint("Horizontal", 7))
sketch8.addConstraint(Sketcher.Constraint("Vertical", 3, 2, 4, 2))
sketch8.addConstraint(Sketcher.Constraint("Vertical", 2, 2, 5, 2))
sketch8.addConstraint(Sketcher.Constraint("Equal", 2, 4))
sketch8.addConstraint(Sketcher.Constraint("DistanceX", 1, 1, 1, 2, Q("0.1875 in")))
sketch8.addConstraint(Sketcher.Constraint("DistanceY", 0, 2, 0, 1, Q("0.094 in")))
sketch8.addConstraint(Sketcher.Constraint("DistanceY", 1, 2, 6, 2, Q("1.08 in")))
sketch8.addConstraint(Sketcher.Constraint("DistanceX", -1, 1, 0, 2, Q("71.27875 mm")))
sketch8.addConstraint(Sketcher.Constraint("DistanceY", 0, 2, -1, 1, Q("98.02823 mm")))
pocket3 = body.newObject("PartDesign::Pocket", "Pocket002")
pocket3.Profile = sketch8
pocket3.Length = Q("0.086 in")
doc.recompute()

fillet = body.newObject("PartDesign::Fillet", "Fillet")
fillet.Base = (pocket3, edges_at(pocket3, [
    (73.66, -93.259, 6.35),
    (78.661, -70.596, 6.35),
    (81.28, -98.028, 3.175),
    (66.04, -98.028, 3.175),
    (66.04, -70.596, 3.175),
    (81.28, -70.596, 3.175),
    (66.04, -84.312, 6.35),
    (78.661, -98.028, 6.35),
    (76.041, -96.834, 6.35),
    (71.279, -96.834, 6.35),
    (73.66, -75.365, 6.35),
    (68.659, -70.596, 6.35),
    (71.279, -71.79, 6.35),
    (76.041, -71.79, 6.35),
    (68.659, -98.028, 6.35),
    (79.216, -90.265, 5.639),
    (68.104, -90.265, 5.639),
    (68.104, -78.359, 5.639),
    (79.216, -78.359, 5.639),
    (73.66, -90.265, 6.35),
    (79.216, -84.312, 6.35),
    (73.66, -78.359, 6.35),
    (68.104, -84.312, 6.35),
    (81.28, -84.312, 6.35),
]))
fillet.Radius = Q("0.02 in")

doc.recompute()
